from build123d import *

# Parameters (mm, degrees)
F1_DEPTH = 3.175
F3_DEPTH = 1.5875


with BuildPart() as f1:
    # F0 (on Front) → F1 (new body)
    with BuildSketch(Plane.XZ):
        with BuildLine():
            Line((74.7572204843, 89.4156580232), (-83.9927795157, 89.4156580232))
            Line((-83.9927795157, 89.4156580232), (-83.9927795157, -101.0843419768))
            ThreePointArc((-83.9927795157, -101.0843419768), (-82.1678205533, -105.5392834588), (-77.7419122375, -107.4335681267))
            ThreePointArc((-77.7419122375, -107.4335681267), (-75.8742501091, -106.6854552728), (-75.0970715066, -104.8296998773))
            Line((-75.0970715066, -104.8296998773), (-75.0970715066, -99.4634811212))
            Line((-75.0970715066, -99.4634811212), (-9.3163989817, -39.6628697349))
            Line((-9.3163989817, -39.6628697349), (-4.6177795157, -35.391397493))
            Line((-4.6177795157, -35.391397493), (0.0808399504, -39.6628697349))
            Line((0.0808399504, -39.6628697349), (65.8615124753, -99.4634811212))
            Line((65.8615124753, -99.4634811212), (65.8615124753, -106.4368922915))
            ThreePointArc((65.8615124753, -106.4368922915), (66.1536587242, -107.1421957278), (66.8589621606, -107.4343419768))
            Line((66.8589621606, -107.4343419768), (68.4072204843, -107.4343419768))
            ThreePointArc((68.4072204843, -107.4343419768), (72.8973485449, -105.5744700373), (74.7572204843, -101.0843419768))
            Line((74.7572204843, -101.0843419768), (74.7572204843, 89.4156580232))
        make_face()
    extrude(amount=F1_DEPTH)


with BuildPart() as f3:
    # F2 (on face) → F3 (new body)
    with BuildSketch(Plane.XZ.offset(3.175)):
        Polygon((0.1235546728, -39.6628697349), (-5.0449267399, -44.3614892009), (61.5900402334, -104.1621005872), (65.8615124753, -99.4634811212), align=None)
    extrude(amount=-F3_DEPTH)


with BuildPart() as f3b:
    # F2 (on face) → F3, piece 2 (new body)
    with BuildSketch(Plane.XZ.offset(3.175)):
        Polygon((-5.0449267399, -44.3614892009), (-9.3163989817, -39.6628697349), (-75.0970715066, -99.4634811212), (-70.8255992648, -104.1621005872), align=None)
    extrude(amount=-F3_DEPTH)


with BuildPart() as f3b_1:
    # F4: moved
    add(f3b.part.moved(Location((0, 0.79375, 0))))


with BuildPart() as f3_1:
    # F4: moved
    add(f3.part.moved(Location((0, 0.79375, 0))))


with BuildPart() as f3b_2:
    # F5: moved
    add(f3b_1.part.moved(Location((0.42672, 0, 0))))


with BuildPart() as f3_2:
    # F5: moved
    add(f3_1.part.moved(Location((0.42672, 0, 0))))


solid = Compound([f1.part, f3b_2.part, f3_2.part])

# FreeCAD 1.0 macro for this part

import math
import FreeCAD as App
import Part
import Sketcher

V = App.Vector
Q = App.Units.Quantity


def add_polygon(sketch, points):
    """Adds a closed chain of lines whose ends are joined by coincident constraints."""
    first, n = sketch.GeometryCount, len(points)
    for a, b in zip(points, points[1:] + points[:1]):
        sketch.addGeometry(Part.LineSegment(App.Vector(*a, 0), App.Vector(*b, 0)), False)
    for i in range(n):
        sketch.addConstraint(Sketcher.Constraint("Coincident", first + i, 2, first + (i + 1) % n, 1))

doc = App.newDocument("Part")
params = doc.addObject("Spreadsheet::Sheet", "Params")
for row, (alias, value) in enumerate([
    ("sketch1_radius", "0.25 in"),
    ("sketch1_height", "7.5 in"),
    ("sketch1_length", "3.5 in"),
    ("sketch1_length2", "0.25 in"),
    ("pad1_length", "0.125 in"),
    ("sketch2_length", "0.25 in"),
    ("sketch2_length2", "0.275 in"),
    ("pad2_length", "0.0625 in"),
    ("sketch3_length", "3.5 in"),
    ("sketch3_length2", "0.25 in"),
    ("pad3_length", "0.0625 in"),
], start=1):
    params.set(f"A{row}", alias)
    params.set(f"B{row}", "=" + value)
    params.setAlias(f"B{row}", alias)

body = doc.addObject("PartDesign::Body", "Body")

# Sketch on XZ plane
sketch1 = body.newObject("Sketcher::SketchObject", "Sketch")
sketch1.AttachmentSupport = (doc.getObject("XZ_Plane"), [""])
sketch1.MapMode = "FlatFace"
sketch1.addGeometry([
    Part.LineSegment(V(74.75722, 89.415658, 0), V(-83.99278, 89.415658, 0)),  # 0
    Part.LineSegment(V(-83.99278, 89.415658, 0), V(-83.99278, -101.084342, 0)),  # 1
    Part.ArcOfCircle(Part.Circle(V(-77.64278, -101.084342, 0), V(0, 0, 1), 6.35), math.radians(180), math.radians(269.105493)),  # 2
    Part.ArcOfCircle(Part.Circle(V(-77.701257, -104.8297, 0), V(0, 0, 1), 2.604186), math.radians(-90.894507), math.radians(0)),  # 3
    Part.LineSegment(V(-75.097072, -104.8297, 0), V(-75.097072, -99.463481, 0)),  # 4
    Part.LineSegment(V(-75.097072, -99.463481, 0), V(-9.316399, -39.66287, 0)),  # 5
    Part.LineSegment(V(-9.316399, -39.66287, 0), V(-4.61778, -35.391397, 0)),  # 6
    Part.LineSegment(V(-4.61778, -35.391397, 0), V(0.08084, -39.66287, 0)),  # 7
    Part.LineSegment(V(0.08084, -39.66287, 0), V(65.861512, -99.463481, 0)),  # 8
    Part.LineSegment(V(65.861512, -99.463481, 0), V(65.861512, -106.436892, 0)),  # 9
    Part.ArcOfCircle(Part.Circle(V(66.858962, -106.436892, 0), V(0, 0, 1), 0.99745), math.radians(-180), math.radians(-90)),  # 10
    Part.LineSegment(V(66.858962, -107.434342, 0), V(68.40722, -107.434342, 0)),  # 11
    Part.ArcOfCircle(Part.Circle(V(68.40722, -101.084342, 0), V(0, 0, 1), 6.35), math.radians(-90), math.radians(0)),  # 12
    Part.LineSegment(V(74.75722, -101.084342, 0), V(74.75722, 89.415658, 0)),  # 13
], False)
sketch1.addConstraint([
    Sketcher.Constraint("Coincident", 0, 2, 1, 1),
    Sketcher.Constraint("Tangent", 1, 2, 2, 1),
    Sketcher.Constraint("Tangent", 2, 2, 3, 1),
    Sketcher.Constraint("Tangent", 3, 2, 4, 1),
    Sketcher.Constraint("Coincident", 4, 2, 5, 1),
    Sketcher.Constraint("Coincident", 5, 2, 6, 1),
    Sketcher.Constraint("Coincident", 6, 2, 7, 1),
    Sketcher.Constraint("Coincident", 7, 2, 8, 1),
    Sketcher.Constraint("Coincident", 8, 2, 9, 1),
    Sketcher.Constraint("Tangent", 9, 2, 10, 1),
    Sketcher.Constraint("Tangent", 10, 2, 11, 1),
    Sketcher.Constraint("Tangent", 11, 2, 12, 1),
    Sketcher.Constraint("Tangent", 12, 2, 13, 1),
    Sketcher.Constraint("Coincident", 13, 2, 0, 1),
    Sketcher.Constraint("Horizontal", 0),
    Sketcher.Constraint("Vertical", 1),
    Sketcher.Constraint("Vertical", 4),
    Sketcher.Constraint("Vertical", 9),
    Sketcher.Constraint("Horizontal", 11),
    Sketcher.Constraint("Vertical", 13),
    Sketcher.Constraint("Equal", 2, 12),
    Sketcher.Constraint("Parallel", 5, 6),
    Sketcher.Constraint("Parallel", 7, 8),
    Sketcher.Constraint("Horizontal", 2, 3, 12, 3),
    Sketcher.Constraint("Horizontal", 5, 2, 7, 2),
    Sketcher.Constraint("Horizontal", 4, 2, 8, 2),
    Sketcher.Constraint("Equal", 6, 7),
    Sketcher.Constraint("Radius", 2, Q("0.25 in")),
    Sketcher.Constraint("DistanceY", 1, 2, 1, 1, Q("7.5 in")),
    Sketcher.Constraint("DistanceX", 0, 2, 12, 3, Q("6 in")),
    Sketcher.Constraint("Distance", 5, Q("3.5 in")),
    Sketcher.Constraint("Distance", 6, Q("0.25 in")),
    Sketcher.Constraint("Radius", 10, 0.99745),
    Sketcher.Constraint("DistanceX", 2, 3, 6, 2, Q("2.875 in")),
    Sketcher.Constraint("Radius", 3, 2.604186),
    Sketcher.Constraint("DistanceX", 11, 1, 11, 2, 1.548258),
    Sketcher.Constraint("DistanceY", 4, 1, 4, 2, 5.366219),
    Sketcher.Constraint("DistanceY", 3, 3, -1, 1, 104.8297),
    Sketcher.Constraint("DistanceX", 5, 2, -1, 1, 9.316399),
])
sketch1.setExpression("Constraints[27]", "Params.sketch1_radius")
sketch1.setExpression("Constraints[28]", "Params.sketch1_height")
sketch1.setExpression("Constraints[30]", "Params.sketch1_length")
sketch1.setExpression("Constraints[31]", "Params.sketch1_length2")
pad1 = body.newObject("PartDesign::Pad", "Pad")
pad1.Profile = sketch1
pad1.setExpression("Length", "Params.pad1_length")
body2 = doc.addObject("PartDesign::Body", "Body001")

# Sketch on XZ plane
sketch2 = body2.newObject("Sketcher::SketchObject", "Sketch001")
sketch2.AttachmentSupport = (doc.getObject("XZ_Plane001"), [""])
sketch2.MapMode = "FlatFace"
sketch2.AttachmentOffset = App.Placement(V(0, 0, 0.125 * 25.4), App.Rotation())
add_polygon(sketch2, [(0.123555, -39.66287), (-5.044927, -44.361489), (61.59004, -104.162101), (65.861512, -99.463481)])  # lines 0-3
sketch2.addConstraint([
    Sketcher.Constraint("Distance", 2, Q("0.25 in")),
    Sketcher.Constraint("Distance", 0, Q("0.275 in")),
    Sketcher.Constraint("Distance", 3, 88.868398),
    Sketcher.Constraint("DistanceY", 1, 2, -1, 1, 104.162101),
    Sketcher.Constraint("Distance", 1, 89.533971),
    Sketcher.Constraint("DistanceY", 0, 2, -1, 1, 44.361489),
    Sketcher.Constraint("DistanceX", -1, 1, 1, 2, 61.59004),
    Sketcher.Constraint("DistanceY", 2, 2, -1, 1, 99.463481),
])
sketch2.setExpression("Constraints[4]", "Params.sketch2_length")
sketch2.setExpression("Constraints[5]", "Params.sketch2_length2")
pad2 = body2.newObject("PartDesign::Pad", "Pad001")
pad2.Profile = sketch2
pad2.setExpression("Length", "Params.pad2_length")
pad2.Reversed = True
body3 = doc.addObject("PartDesign::Body", "Body002")

# Sketch on XZ plane
sketch3 = body3.newObject("Sketcher::SketchObject", "Sketch002")
sketch3.AttachmentSupport = (doc.getObject("XZ_Plane002"), [""])
sketch3.MapMode = "FlatFace"
sketch3.AttachmentOffset = App.Placement(V(0, 0, 0.125 * 25.4), App.Rotation())
add_polygon(sketch3, [(-5.044927, -44.361489), (-9.316399, -39.66287), (-75.097072, -99.463481), (-70.825599, -104.162101)])  # lines 0-3
sketch3.addConstraint([
    Sketcher.Constraint("Perpendicular", 0, 1),
    Sketcher.Constraint("Perpendicular", 1, 2),
    Sketcher.Constraint("Perpendicular", 2, 3),
    Sketcher.Constraint("Distance", 1, Q("3.5 in")),
    Sketcher.Constraint("Distance", 0, Q("0.25 in")),
    Sketcher.Constraint("DistanceX", 0, 2, -1, 1, 9.316399),
    Sketcher.Constraint("DistanceX", 2, 2, -1, 1, 70.825599),
    Sketcher.Constraint("DistanceY", 2, 2, -1, 1, 104.162101),
])
sketch3.setExpression("Constraints[7]", "Params.sketch3_length")
sketch3.setExpression("Constraints[8]", "Params.sketch3_length2")
pad3 = body3.newObject("PartDesign::Pad", "Pad002")
pad3.Profile = sketch3
pad3.setExpression("Length", "Params.pad3_length")
pad3.Reversed = True
body4 = doc.addObject("PartDesign::Body", "Body003")
doc.recompute()

body3.Placement = App.Placement(V(0, 0.79375, 0), App.Rotation(V(0, 0, 1), 0))
boolean = body4.newObject("PartDesign::Boolean", "Boolean")
boolean.Type = "Fuse"
boolean.addObjects([body3])
body5 = doc.addObject("PartDesign::Body", "Body004")
doc.recompute()

body2.Placement = App.Placement(V(0, 0.79375, 0), App.Rotation(V(0, 0, 1), 0))
boolean2 = body5.newObject("PartDesign::Boolean", "Boolean001")
boolean2.Type = "Fuse"
boolean2.addObjects([body2])
body6 = doc.addObject("PartDesign::Body", "Body005")
doc.recompute()

body4.Placement = App.Placement(V(0.42672, 0, 0), App.Rotation(V(0, 0, 1), 0))
boolean3 = body6.newObject("PartDesign::Boolean", "Boolean002")
boolean3.Type = "Fuse"
boolean3.addObjects([body4])
body7 = doc.addObject("PartDesign::Body", "Body006")
doc.recompute()

body5.Placement = App.Placement(V(0.42672, 0, 0), App.Rotation(V(0, 0, 1), 0))
boolean4 = body7.newObject("PartDesign::Boolean", "Boolean003")
boolean4.Type = "Fuse"
boolean4.addObjects([body5])

doc.recompute()
